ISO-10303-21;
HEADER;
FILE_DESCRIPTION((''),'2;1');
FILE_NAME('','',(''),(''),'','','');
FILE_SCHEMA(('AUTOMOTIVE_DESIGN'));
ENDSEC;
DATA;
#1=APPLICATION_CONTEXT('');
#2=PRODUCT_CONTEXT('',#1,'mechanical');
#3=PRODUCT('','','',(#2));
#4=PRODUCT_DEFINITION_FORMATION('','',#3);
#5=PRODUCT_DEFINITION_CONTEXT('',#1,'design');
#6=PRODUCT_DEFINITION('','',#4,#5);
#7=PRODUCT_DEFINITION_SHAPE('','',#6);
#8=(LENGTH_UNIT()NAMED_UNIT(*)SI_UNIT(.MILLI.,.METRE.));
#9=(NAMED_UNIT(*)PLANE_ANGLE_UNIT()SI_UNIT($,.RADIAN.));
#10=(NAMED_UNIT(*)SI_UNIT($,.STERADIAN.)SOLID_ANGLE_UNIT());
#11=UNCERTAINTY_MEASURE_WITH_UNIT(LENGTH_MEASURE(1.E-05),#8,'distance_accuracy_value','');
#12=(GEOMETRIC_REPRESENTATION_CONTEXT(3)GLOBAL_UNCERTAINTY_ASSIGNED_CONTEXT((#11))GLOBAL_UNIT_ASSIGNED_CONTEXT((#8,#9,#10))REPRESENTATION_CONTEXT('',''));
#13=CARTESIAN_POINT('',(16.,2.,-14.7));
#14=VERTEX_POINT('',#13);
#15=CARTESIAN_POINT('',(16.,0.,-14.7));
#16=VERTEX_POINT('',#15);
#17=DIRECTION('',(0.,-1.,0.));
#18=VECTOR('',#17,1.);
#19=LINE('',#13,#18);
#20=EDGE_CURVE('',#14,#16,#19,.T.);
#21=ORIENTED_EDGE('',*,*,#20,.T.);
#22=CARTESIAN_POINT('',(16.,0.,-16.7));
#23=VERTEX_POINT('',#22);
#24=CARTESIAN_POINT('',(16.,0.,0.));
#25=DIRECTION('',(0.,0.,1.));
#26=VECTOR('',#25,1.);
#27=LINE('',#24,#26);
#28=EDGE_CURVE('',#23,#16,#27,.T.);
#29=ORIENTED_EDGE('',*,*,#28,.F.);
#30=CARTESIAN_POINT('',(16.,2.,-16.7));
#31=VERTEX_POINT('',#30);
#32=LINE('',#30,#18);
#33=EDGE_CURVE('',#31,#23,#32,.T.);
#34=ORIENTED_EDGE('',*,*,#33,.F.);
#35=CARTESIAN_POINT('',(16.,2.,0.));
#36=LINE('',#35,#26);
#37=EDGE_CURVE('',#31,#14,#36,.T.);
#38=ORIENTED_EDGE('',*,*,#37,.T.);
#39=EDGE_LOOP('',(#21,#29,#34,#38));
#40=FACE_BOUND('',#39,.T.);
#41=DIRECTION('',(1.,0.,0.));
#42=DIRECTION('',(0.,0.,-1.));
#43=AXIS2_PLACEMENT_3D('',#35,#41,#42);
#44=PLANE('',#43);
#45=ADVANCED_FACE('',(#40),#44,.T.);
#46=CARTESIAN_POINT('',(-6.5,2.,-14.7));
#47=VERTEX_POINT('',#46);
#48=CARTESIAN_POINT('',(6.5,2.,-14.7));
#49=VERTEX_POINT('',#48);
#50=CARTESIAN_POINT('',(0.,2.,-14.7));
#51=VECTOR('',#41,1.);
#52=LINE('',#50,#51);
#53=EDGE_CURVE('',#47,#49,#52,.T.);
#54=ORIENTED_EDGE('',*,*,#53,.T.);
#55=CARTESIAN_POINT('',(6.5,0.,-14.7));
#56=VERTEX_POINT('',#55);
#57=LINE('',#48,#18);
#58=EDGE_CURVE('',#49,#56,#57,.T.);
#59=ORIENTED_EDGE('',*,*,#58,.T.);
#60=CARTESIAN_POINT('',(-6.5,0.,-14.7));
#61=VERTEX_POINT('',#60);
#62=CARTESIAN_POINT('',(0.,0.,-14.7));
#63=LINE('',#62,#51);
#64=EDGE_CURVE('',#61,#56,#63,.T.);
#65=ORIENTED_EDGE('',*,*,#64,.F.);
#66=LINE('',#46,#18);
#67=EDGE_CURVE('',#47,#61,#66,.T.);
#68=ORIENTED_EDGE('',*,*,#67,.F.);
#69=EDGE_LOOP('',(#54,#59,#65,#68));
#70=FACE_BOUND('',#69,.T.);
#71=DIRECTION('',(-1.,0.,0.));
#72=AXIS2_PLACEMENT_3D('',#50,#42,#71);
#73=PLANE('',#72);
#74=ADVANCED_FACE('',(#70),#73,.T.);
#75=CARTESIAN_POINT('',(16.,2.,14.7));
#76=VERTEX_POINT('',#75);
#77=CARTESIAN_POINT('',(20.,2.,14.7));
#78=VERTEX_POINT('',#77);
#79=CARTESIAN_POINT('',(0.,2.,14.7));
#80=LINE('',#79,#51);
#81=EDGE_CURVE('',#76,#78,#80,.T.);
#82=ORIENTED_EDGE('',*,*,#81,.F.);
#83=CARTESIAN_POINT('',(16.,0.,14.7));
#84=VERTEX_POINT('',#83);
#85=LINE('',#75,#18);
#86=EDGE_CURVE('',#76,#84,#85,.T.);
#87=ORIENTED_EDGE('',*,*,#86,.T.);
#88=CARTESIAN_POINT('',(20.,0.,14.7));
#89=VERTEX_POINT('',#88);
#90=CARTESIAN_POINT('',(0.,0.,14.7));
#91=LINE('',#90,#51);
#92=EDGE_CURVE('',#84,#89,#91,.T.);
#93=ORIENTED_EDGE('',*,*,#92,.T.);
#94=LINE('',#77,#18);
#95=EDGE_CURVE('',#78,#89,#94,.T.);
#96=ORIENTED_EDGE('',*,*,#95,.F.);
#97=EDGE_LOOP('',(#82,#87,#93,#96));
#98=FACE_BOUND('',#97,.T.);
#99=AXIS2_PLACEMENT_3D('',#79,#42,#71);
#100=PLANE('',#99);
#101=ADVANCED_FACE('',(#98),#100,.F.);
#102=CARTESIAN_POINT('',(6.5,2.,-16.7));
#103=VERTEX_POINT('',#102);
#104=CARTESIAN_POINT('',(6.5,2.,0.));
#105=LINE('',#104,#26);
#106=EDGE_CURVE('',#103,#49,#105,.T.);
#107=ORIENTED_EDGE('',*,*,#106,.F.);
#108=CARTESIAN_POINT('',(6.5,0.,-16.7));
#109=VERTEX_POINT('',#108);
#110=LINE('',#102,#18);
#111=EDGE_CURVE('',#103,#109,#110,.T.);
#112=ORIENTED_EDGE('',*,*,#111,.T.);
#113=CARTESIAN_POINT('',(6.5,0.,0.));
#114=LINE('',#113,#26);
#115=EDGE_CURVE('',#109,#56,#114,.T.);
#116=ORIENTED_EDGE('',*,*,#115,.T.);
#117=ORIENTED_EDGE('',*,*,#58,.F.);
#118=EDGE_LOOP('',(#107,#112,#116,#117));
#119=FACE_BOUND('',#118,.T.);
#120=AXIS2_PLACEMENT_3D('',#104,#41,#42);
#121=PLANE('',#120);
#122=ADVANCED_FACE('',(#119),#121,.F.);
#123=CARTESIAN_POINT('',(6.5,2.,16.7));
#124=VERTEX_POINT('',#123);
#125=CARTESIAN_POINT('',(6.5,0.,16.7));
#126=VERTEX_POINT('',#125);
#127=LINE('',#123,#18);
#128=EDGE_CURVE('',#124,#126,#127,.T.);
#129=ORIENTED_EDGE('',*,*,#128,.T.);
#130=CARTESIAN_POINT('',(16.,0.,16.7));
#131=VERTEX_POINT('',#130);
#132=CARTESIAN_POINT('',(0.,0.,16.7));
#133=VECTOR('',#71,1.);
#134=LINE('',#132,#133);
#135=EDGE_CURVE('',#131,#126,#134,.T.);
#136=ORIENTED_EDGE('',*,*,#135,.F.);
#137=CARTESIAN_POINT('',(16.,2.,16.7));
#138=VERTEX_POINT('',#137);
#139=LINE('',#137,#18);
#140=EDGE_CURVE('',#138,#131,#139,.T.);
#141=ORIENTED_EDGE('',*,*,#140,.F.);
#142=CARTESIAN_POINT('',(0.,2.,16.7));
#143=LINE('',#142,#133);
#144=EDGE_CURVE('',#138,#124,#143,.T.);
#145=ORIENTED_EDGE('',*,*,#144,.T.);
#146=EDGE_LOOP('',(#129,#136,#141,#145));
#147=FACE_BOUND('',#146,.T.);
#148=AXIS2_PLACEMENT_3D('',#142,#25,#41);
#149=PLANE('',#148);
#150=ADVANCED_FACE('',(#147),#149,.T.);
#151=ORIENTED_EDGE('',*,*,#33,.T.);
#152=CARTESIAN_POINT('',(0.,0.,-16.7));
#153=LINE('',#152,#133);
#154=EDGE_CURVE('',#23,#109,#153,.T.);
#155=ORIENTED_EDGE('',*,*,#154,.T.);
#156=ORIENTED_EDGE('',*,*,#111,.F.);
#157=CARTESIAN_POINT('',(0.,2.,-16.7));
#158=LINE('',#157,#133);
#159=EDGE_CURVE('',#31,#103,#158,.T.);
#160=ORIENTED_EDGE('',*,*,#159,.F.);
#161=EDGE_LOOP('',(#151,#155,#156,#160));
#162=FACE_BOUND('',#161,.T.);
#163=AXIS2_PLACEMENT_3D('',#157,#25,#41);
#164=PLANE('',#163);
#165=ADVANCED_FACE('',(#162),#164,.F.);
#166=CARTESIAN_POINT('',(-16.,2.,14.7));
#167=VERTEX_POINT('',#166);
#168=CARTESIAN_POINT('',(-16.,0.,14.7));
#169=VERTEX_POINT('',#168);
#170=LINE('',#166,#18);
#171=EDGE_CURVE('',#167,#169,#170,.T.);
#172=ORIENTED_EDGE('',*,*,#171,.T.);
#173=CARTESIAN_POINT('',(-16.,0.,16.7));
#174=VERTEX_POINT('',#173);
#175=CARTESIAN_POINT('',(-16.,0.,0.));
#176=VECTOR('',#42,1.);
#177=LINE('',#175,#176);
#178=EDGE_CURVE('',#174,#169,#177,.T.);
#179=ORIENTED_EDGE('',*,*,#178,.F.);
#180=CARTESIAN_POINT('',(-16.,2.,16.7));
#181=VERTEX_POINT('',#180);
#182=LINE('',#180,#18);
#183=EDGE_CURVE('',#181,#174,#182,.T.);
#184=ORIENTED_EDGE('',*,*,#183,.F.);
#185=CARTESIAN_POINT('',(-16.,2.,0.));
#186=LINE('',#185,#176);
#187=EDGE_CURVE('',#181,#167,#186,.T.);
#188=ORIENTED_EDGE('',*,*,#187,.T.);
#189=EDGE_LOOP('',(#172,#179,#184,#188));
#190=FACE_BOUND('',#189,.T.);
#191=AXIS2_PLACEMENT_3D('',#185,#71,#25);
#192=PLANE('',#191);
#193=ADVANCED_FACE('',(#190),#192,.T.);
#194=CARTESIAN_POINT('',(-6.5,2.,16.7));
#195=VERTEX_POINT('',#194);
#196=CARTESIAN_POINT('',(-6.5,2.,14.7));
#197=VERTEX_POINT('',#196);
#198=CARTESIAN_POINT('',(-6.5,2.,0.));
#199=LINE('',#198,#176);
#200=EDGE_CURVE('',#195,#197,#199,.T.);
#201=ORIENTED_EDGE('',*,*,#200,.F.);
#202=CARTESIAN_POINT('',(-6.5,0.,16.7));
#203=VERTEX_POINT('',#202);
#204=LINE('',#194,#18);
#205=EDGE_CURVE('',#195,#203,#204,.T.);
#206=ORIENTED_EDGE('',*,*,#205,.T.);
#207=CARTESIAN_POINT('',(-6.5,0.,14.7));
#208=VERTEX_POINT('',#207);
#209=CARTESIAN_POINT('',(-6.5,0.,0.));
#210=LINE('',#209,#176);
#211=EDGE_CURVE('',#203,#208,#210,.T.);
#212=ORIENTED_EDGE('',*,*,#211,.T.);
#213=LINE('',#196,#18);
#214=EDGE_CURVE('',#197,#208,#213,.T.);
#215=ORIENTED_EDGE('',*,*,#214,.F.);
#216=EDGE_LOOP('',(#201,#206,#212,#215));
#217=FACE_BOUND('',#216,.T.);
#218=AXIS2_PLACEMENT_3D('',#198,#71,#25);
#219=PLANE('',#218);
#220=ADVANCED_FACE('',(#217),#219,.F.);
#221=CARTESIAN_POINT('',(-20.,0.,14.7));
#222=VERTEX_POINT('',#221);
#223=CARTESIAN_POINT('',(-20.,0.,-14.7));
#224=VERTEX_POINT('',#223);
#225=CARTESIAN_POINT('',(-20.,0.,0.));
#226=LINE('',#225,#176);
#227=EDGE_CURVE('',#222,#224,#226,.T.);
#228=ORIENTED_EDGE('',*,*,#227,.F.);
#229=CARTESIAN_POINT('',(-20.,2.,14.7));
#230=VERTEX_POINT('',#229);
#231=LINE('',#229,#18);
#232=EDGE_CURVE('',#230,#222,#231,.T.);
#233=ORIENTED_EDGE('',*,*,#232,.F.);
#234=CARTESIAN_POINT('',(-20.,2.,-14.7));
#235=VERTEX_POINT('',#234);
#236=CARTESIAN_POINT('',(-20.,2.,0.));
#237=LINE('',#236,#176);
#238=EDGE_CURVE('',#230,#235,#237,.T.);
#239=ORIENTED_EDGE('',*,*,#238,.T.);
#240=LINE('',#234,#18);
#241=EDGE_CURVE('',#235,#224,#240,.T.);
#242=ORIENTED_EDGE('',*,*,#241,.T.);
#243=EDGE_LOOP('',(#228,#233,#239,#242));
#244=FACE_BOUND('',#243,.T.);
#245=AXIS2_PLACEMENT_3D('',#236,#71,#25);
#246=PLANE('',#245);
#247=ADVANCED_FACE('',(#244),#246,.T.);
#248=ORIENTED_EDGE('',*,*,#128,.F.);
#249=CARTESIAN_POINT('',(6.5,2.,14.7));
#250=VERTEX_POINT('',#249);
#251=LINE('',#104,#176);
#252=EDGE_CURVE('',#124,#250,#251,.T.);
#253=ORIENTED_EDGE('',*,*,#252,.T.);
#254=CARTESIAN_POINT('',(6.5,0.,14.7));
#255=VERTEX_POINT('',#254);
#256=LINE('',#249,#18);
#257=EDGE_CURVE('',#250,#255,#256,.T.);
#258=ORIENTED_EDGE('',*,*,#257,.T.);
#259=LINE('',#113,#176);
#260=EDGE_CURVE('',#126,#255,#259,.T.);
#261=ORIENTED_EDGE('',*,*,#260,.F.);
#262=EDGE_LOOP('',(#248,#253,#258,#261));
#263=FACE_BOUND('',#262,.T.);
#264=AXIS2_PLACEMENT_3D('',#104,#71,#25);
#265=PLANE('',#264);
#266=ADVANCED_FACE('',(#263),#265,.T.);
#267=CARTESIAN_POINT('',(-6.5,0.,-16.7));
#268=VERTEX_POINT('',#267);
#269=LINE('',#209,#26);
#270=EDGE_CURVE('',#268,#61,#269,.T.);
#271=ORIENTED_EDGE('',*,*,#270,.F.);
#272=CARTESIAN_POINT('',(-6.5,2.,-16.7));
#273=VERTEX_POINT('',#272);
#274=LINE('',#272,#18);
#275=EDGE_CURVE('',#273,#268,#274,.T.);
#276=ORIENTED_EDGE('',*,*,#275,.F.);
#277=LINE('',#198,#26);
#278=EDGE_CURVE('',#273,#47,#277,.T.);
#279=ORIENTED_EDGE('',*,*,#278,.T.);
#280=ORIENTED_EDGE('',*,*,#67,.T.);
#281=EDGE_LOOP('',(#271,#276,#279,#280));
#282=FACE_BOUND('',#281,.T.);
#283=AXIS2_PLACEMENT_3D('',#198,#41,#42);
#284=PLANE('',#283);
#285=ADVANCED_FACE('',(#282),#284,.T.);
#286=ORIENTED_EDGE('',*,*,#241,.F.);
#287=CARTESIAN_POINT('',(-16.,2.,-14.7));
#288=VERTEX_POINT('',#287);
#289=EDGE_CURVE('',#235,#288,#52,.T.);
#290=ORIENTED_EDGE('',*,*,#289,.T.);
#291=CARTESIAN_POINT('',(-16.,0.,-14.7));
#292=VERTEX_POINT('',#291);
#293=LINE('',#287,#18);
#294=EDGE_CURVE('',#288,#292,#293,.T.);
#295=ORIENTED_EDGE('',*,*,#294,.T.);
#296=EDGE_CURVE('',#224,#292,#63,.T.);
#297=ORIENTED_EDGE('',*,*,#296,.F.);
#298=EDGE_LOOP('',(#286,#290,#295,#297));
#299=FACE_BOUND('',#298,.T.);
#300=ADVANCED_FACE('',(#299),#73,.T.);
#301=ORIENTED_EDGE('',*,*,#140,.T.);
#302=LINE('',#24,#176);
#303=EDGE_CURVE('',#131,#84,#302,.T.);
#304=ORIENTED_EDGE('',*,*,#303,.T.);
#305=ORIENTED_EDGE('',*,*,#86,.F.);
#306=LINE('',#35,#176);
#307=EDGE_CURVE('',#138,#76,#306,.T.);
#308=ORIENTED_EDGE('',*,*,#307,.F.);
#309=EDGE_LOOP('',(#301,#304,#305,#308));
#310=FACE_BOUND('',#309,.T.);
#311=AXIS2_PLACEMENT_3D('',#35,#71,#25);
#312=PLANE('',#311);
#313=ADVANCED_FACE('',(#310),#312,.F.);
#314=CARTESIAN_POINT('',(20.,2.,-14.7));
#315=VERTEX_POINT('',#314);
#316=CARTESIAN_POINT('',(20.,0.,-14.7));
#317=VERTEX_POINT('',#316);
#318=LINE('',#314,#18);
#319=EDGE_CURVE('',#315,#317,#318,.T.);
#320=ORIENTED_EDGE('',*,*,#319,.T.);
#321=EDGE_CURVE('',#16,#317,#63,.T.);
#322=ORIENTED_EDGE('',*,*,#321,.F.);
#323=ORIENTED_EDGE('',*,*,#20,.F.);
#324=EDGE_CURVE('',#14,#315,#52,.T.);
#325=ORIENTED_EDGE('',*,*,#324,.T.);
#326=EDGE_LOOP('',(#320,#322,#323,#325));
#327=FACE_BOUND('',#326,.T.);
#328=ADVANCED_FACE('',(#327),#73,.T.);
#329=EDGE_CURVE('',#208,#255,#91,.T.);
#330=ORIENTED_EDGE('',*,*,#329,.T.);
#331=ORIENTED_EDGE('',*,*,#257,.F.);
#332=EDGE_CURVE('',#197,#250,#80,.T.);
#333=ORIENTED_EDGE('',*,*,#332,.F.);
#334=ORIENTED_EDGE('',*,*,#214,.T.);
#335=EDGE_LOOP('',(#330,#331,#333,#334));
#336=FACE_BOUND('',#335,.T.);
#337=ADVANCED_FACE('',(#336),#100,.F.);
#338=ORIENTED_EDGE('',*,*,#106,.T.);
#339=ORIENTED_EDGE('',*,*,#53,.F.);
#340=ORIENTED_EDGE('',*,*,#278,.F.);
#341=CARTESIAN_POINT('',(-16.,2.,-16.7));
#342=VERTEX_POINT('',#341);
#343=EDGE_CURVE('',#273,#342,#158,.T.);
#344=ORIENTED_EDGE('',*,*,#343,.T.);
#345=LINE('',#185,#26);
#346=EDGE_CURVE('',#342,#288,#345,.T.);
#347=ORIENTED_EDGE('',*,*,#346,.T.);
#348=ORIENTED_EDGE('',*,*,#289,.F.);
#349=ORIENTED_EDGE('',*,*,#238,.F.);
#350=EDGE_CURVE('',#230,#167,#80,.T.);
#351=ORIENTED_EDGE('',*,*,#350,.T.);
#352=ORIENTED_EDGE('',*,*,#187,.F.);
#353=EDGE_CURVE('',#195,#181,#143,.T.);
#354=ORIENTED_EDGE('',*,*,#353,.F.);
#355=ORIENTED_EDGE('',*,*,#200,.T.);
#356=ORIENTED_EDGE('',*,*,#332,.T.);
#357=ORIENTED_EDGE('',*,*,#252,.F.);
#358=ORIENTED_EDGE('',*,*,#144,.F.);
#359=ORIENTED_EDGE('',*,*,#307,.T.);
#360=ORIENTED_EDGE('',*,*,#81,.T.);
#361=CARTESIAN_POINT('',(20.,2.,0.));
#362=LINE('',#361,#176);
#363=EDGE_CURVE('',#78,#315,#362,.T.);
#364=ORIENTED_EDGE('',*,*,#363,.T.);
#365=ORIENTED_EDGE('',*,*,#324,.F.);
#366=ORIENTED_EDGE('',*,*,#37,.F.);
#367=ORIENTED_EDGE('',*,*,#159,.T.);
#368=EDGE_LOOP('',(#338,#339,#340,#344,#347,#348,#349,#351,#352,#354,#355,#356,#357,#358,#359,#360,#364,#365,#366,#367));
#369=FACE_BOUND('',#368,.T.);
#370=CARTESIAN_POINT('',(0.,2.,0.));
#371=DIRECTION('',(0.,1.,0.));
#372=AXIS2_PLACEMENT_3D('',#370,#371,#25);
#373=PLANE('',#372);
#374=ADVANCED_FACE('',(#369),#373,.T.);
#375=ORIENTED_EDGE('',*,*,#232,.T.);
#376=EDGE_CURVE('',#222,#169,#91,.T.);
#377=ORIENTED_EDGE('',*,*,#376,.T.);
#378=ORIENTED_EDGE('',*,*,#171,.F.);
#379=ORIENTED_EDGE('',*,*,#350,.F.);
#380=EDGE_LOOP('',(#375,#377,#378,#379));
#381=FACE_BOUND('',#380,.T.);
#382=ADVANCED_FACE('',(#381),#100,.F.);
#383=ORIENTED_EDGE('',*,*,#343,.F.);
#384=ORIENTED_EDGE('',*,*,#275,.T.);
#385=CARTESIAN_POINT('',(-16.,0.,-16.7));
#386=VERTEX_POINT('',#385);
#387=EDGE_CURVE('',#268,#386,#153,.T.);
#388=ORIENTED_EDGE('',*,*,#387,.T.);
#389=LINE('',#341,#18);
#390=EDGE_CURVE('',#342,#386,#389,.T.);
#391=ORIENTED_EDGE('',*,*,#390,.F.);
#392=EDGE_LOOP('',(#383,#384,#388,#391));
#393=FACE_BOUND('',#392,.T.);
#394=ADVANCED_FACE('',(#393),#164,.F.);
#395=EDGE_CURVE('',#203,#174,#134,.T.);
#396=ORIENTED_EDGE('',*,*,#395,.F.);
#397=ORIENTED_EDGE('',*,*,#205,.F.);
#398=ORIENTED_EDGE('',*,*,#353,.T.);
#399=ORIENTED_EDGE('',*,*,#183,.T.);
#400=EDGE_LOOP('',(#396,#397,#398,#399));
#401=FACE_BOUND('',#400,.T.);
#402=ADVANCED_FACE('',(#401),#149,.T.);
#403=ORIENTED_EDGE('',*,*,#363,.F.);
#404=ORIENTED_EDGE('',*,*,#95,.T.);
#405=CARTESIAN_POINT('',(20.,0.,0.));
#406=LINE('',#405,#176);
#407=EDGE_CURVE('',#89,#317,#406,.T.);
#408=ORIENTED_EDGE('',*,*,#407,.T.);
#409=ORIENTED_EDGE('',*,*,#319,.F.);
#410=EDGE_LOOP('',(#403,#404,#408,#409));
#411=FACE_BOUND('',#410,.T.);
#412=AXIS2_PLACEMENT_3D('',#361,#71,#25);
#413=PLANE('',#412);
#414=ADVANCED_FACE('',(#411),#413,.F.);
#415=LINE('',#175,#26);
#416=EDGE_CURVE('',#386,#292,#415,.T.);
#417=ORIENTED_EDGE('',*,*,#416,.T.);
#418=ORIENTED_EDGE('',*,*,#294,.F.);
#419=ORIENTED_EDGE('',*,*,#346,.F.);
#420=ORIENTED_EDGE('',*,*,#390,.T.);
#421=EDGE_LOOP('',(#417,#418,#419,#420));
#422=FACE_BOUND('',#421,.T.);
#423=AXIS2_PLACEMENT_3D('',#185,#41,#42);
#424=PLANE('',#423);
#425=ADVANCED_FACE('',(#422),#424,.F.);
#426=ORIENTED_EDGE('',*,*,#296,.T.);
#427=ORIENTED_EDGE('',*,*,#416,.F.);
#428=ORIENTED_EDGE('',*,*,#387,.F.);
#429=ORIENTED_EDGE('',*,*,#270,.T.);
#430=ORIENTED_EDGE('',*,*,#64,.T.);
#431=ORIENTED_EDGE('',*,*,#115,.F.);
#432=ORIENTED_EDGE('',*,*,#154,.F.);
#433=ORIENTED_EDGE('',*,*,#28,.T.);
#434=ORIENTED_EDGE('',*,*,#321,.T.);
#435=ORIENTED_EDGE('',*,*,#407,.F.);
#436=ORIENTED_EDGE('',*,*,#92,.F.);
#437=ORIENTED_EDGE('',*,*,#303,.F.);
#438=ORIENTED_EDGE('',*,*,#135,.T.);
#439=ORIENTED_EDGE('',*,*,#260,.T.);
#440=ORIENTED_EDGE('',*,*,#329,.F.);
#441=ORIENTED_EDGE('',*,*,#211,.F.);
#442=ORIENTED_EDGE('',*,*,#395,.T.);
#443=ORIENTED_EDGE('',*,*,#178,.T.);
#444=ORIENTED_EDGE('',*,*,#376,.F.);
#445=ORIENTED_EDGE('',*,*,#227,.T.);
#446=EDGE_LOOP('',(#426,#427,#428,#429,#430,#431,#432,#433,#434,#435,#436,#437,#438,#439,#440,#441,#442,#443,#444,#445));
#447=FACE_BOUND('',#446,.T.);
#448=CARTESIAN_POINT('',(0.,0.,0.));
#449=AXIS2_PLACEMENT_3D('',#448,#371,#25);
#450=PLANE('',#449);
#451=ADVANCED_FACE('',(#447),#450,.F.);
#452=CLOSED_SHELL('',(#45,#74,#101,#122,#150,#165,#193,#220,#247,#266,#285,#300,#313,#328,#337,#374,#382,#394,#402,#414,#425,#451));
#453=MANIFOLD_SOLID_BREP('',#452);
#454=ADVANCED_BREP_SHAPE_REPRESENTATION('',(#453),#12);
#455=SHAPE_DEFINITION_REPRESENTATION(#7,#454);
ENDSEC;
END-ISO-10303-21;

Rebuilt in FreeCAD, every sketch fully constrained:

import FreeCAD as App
import Part
import Sketcher
Q = App.Units.Quantity

doc = App.newDocument("Part")
body = doc.addObject("PartDesign::Body", "Body")

sketch1 = body.newObject("Sketcher::SketchObject", "Sketch")
sketch1.AttachmentSupport = (doc.getObject("XZ_Plane"), [""])
sketch1.MapMode = "FlatFace"
sketch1.addGeometry([
    Part.LineSegment(App.Vector(-20, -14.7, 0), App.Vector(-20, 14.7, 0)),
    Part.LineSegment(App.Vector(-20, 14.7, 0), App.Vector(-16, 14.7, 0)),
    Part.LineSegment(App.Vector(-16, 14.7, 0), App.Vector(-16, 16.7, 0)),
    Part.LineSegment(App.Vector(-16, 16.7, 0), App.Vector(-6.5, 16.7, 0)),
    Part.LineSegment(App.Vector(-6.5, 16.7, 0), App.Vector(-6.5, 14.7, 0)),
    Part.LineSegment(App.Vector(-6.5, 14.7, 0), App.Vector(6.5, 14.7, 0)),
    Part.LineSegment(App.Vector(6.5, 14.7, 0), App.Vector(6.5, 16.7, 0)),
    Part.LineSegment(App.Vector(6.5, 16.7, 0), App.Vector(16, 16.7, 0)),
    Part.LineSegment(App.Vector(16, 16.7, 0), App.Vector(16, 14.7, 0)),
    Part.LineSegment(App.Vector(16, 14.7, 0), App.Vector(20, 14.7, 0)),
    Part.LineSegment(App.Vector(20, 14.7, 0), App.Vector(20, -14.7, 0)),
    Part.LineSegment(App.Vector(20, -14.7, 0), App.Vector(16, -14.7, 0)),
    Part.LineSegment(App.Vector(16, -14.7, 0), App.Vector(16, -16.7, 0)),
    Part.LineSegment(App.Vector(16, -16.7, 0), App.Vector(6.5, -16.7, 0)),
    Part.LineSegment(App.Vector(6.5, -16.7, 0), App.Vector(6.5, -14.7, 0)),
    Part.LineSegment(App.Vector(6.5, -14.7, 0), App.Vector(-6.5, -14.7, 0)),
    Part.LineSegment(App.Vector(-6.5, -14.7, 0), App.Vector(-6.5, -16.7, 0)),
    Part.LineSegment(App.Vector(-6.5, -16.7, 0), App.Vector(-16, -16.7, 0)),
    Part.LineSegment(App.Vector(-16, -16.7, 0), App.Vector(-16, -14.7, 0)),
    Part.LineSegment(App.Vector(-16, -14.7, 0), App.Vector(-20, -14.7, 0)),
], False)
sketch1.addConstraint([
    Sketcher.Constraint("Coincident", 0, 2, 1, 1),
    Sketcher.Constraint("Coincident", 1, 2, 2, 1),
    Sketcher.Constraint("Coincident", 2, 2, 3, 1),
    Sketcher.Constraint("Coincident", 3, 2, 4, 1),
    Sketcher.Constraint("Coincident", 4, 2, 5, 1),
    Sketcher.Constraint("Coincident", 5, 2, 6, 1),
    Sketcher.Constraint("Coincident", 6, 2, 7, 1),
    Sketcher.Constraint("Coincident", 7, 2, 8, 1),
    Sketcher.Constraint("Coincident", 8, 2, 9, 1),
    Sketcher.Constraint("Coincident", 9, 2, 10, 1),
    Sketcher.Constraint("Coincident", 10, 2, 11, 1),
    Sketcher.Constraint("Coincident", 11, 2, 12, 1),
    Sketcher.Constraint("Coincident", 12, 2, 13, 1),
    Sketcher.Constraint("Coincident", 13, 2, 14, 1),
    Sketcher.Constraint("Coincident", 14, 2, 15, 1),
    Sketcher.Constraint("Coincident", 15, 2, 16, 1),
    Sketcher.Constraint("Coincident", 16, 2, 17, 1),
    Sketcher.Constraint("Coincident", 17, 2, 18, 1),
    Sketcher.Constraint("Coincident", 18, 2, 19, 1),
    Sketcher.Constraint("Coincident", 19, 2, 0, 1),
    Sketcher.Constraint("Vertical", 0),
    Sketcher.Constraint("Horizontal", 1),
    Sketcher.Constraint("Vertical", 2),
    Sketcher.Constraint("Horizontal", 3),
    Sketcher.Constraint("Vertical", 4),
    Sketcher.Constraint("Horizontal", 5),
    Sketcher.Constraint("Vertical", 6),
    Sketcher.Constraint("Horizontal", 7),
    Sketcher.Constraint("Vertical", 8),
    Sketcher.Constraint("Horizontal", 9),
    Sketcher.Constraint("Vertical", 10),
    Sketcher.Constraint("Horizontal", 11),
    Sketcher.Constraint("Vertical", 12),
    Sketcher.Constraint("Horizontal", 13),
    Sketcher.Constraint("Vertical", 14),
    Sketcher.Constraint("Horizontal", 15),
    Sketcher.Constraint("Vertical", 16),
    Sketcher.Constraint("Horizontal", 17),
    Sketcher.Constraint("Vertical", 18),
    Sketcher.Constraint("Horizontal", 19),
    Sketcher.Constraint("Symmetric", 0, 2, 10, 2, -1, 1),
    Sketcher.Constraint("Symmetric", 2, 2, 12, 2, -1, 1),
    Sketcher.Constraint("Symmetric", 4, 2, 14, 2, -1, 1),
    Sketcher.Constraint("Symmetric", 6, 2, 16, 2, -1, 1),
    Sketcher.Constraint("Symmetric", 8, 2, 18, 2, -1, 1),
    Sketcher.Constraint("Symmetric", 3, 2, 6, 2, -2),
    Sketcher.Constraint("Symmetric", 1, 2, 8, 2, -2),
    Sketcher.Constraint("Horizontal", 1, 2, 4, 2),
    Sketcher.Constraint("DistanceX", 1, 1, 1, 2, Q("4 mm")),
    Sketcher.Constraint("DistanceX", 5, 1, 5, 2, Q("13 mm")),
    Sketcher.Constraint("DistanceY", 2, 1, 2, 2, Q("2 mm")),
    Sketcher.Constraint("DistanceX", 3, 1, 3, 2, Q("9.5 mm")),
    Sketcher.Constraint("DistanceY", 0, 1, 0, 2, Q("29.4 mm")),
])
pad1 = body.newObject("PartDesign::Pad", "Pad")
pad1.Profile = sketch1
pad1.Length = 2
pad1.Reversed = True

doc.recompute()
